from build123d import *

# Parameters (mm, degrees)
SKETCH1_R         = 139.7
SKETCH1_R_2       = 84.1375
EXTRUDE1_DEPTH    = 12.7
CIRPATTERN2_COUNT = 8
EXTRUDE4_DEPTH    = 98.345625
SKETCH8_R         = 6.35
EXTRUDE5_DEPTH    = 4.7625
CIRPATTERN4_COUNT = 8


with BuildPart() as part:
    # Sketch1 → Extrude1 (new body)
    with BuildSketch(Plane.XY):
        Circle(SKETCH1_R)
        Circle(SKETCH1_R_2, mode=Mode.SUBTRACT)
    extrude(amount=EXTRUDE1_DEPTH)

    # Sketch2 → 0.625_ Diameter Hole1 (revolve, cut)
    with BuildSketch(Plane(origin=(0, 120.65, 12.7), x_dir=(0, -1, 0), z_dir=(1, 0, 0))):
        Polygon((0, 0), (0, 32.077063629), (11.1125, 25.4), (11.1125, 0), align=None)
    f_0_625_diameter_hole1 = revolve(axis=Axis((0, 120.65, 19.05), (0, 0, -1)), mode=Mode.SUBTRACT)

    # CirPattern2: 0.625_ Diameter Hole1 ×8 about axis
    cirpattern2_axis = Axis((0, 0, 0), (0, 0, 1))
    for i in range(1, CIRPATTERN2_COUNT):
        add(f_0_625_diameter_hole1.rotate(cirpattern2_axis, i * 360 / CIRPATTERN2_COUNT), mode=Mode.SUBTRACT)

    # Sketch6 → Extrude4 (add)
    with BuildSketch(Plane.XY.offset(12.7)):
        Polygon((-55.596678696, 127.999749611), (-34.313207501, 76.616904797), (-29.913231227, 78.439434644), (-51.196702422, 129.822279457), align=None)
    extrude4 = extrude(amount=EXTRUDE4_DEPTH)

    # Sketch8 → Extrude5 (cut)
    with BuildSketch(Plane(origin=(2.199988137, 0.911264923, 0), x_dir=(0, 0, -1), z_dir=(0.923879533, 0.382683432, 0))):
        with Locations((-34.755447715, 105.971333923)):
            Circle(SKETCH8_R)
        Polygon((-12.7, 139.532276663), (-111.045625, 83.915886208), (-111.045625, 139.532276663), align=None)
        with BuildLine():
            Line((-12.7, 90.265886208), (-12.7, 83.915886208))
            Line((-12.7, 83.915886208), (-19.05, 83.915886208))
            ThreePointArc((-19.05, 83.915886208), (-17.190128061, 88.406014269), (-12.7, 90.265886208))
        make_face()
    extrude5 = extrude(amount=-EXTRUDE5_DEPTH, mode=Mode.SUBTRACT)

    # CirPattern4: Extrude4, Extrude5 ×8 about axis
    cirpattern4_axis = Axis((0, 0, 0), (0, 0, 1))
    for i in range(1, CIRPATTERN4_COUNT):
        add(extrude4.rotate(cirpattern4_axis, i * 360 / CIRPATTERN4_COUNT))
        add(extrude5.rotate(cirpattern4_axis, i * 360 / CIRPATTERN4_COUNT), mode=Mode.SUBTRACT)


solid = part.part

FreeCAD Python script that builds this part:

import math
import FreeCAD as App
import Part
import Sketcher
Q = App.Units.Quantity

doc = App.newDocument("Part")
params = doc.addObject("Spreadsheet::Sheet", "Params")
for row, (alias, value) in enumerate([
    ("sketch1_diameter", "11 in"),
    ("sketch1_diameter2", "6.625 in"),
    ("pad1_length", "0.5 in"),
    ("sketch2_height", "1 in"),
    ("sketch2_width", "0.4375 in"),
    ("groove_angle", "360 deg"),
    ("sketch3_length", "0.1875 in"),
    ("pad2_length", "98.345625 mm"),
    ("sketch4_diameter", "0.5 in"),
    ("pocket1_length", "0.1875 in"),
], start=1):
    params.set(f"A{row}", alias)
    params.set(f"B{row}", "=" + value)
    params.setAlias(f"B{row}", alias)

body = doc.addObject("PartDesign::Body", "Body")

# Sketch on XY plane
sketch1 = body.newObject("Sketcher::SketchObject", "Sketch")
sketch1.AttachmentSupport = (doc.getObject("XY_Plane"), [""])
sketch1.MapMode = "FlatFace"
sketch1.addGeometry([
    Part.Circle(App.Vector(0, 0, 0), App.Vector(0, 0, 1), 140),
    Part.Circle(App.Vector(0, 0, 0), App.Vector(0, 0, 1), 84),
], False)
sketch1.addConstraint([
    Sketcher.Constraint("Coincident", 0, 3, -1, 1),
    Sketcher.Constraint("Coincident", 1, 3, -1, 1),
    Sketcher.Constraint("Diameter", 0, Q("11 in")),
    Sketcher.Constraint("Diameter", 1, Q("6.625 in")),
])
sketch1.setExpression("Constraints[2]", "Params.sketch1_diameter")
sketch1.setExpression("Constraints[3]", "Params.sketch1_diameter2")
pad1 = body.newObject("PartDesign::Pad", "Pad")
pad1.Profile = sketch1
pad1.setExpression("Length", "Params.pad1_length")

# Sketch on YZ plane
sketch2 = body.newObject("Sketcher::SketchObject", "Sketch001")
sketch2.AttachmentSupport = (doc.getObject("YZ_Plane"), [""])
sketch2.MapMode = "FlatFace"
sketch2.addGeometry([
    Part.LineSegment(App.Vector(121, -19, 0), App.Vector(121, 13, 0)),
    Part.LineSegment(App.Vector(121, 13, 0), App.Vector(110, 13, 0)),
    Part.LineSegment(App.Vector(110, 13, 0), App.Vector(110, -13, 0)),
    Part.LineSegment(App.Vector(110, -13, 0), App.Vector(121, -19, 0)),
], False)
sketch2.addGeometry(Part.LineSegment(App.Vector(121, 13, 0), App.Vector(121, -19, 0)), True)  # axis
sketch2.addConstraint([
    Sketcher.Constraint("Coincident", 0, 2, 1, 1),
    Sketcher.Constraint("Coincident", 1, 2, 2, 1),
    Sketcher.Constraint("Coincident", 2, 2, 3, 1),
    Sketcher.Constraint("Coincident", 3, 2, 0, 1),
    Sketcher.Constraint("Vertical", 0),
    Sketcher.Constraint("Horizontal", 1),
    Sketcher.Constraint("Vertical", 2),
    Sketcher.Constraint("Vertical", 4),
    Sketcher.Constraint("Coincident", 4, 1, 0, 2),
    Sketcher.Constraint("Equal", 0, 4),
    Sketcher.Constraint("DistanceY", 2, 2, 2, 1, Q("1 in")),
    Sketcher.Constraint("Angle", 3, Q("-31 deg")),
    Sketcher.Constraint("DistanceY", -1, 1, 0, 2, Q("0.5 in")),
    Sketcher.Constraint("DistanceX", 1, 2, 1, 1, Q("0.4375 in")),
    Sketcher.Constraint("DistanceX", -1, 1, 0, 2, Q("4.75 in")),
])
sketch2.setExpression("Constraints[10]", "Params.sketch2_height")
sketch2.setExpression("Constraints[13]", "Params.sketch2_width")
groove = body.newObject("PartDesign::Groove", "Groove")
groove.Profile = sketch2
groove.ReferenceAxis = (sketch2, ["Axis0"])
groove.setExpression("Angle", "Params.groove_angle")
doc.recompute()

polarpattern = body.newObject("PartDesign::PolarPattern", "PolarPattern")
polarpattern.Originals = [groove]
polarpattern.Axis = (doc.getObject("Z_Axis"), [""])
polarpattern.Angle = 360
polarpattern.Occurrences = 8
body.Tip = polarpattern

# Sketch on XY plane
sketch3 = body.newObject("Sketcher::SketchObject", "Sketch002")
sketch3.AttachmentSupport = (doc.getObject("XY_Plane"), [""])
sketch3.MapMode = "FlatFace"
sketch3.AttachmentOffset = App.Placement(App.Vector(0, 0, 0.5 * 25.4), App.Rotation())
sketch3.addGeometry([
    Part.LineSegment(App.Vector(-55.6, 128, 0), App.Vector(-34.3, 76.6, 0)),
    Part.LineSegment(App.Vector(-34.3, 76.6, 0), App.Vector(-29.9, 78.4, 0)),
    Part.LineSegment(App.Vector(-29.9, 78.4, 0), App.Vector(-51.2, 129.8, 0)),
    Part.LineSegment(App.Vector(-51.2, 129.8, 0), App.Vector(-55.6, 128, 0)),
], False)
sketch3.addConstraint([
    Sketcher.Constraint("Coincident", 0, 2, 1, 1),
    Sketcher.Constraint("Coincident", 1, 2, 2, 1),
    Sketcher.Constraint("Coincident", 2, 2, 3, 1),
    Sketcher.Constraint("Coincident", 3, 2, 0, 1),
    Sketcher.Constraint("Perpendicular", 0, 1),
    Sketcher.Constraint("Perpendicular", 1, 2),
    Sketcher.Constraint("Perpendicular", 2, 3),
    Sketcher.Constraint("Angle", 0, Q("-67.5 deg")),
    Sketcher.Constraint("Distance", 1, Q("0.1875 in")),
    Sketcher.Constraint("Distance", 0, Q("55.61639 mm")),
    Sketcher.Constraint("DistanceX", 1, 2, -1, 1, Q("29.913231 mm")),
    Sketcher.Constraint("DistanceY", -1, 1, 2, 2, Q("129.822279 mm")),
])
sketch3.setExpression("Constraints[8]", "Params.sketch3_length")
pad2 = body.newObject("PartDesign::Pad", "Pad001")
pad2.Profile = sketch3
pad2.setExpression("Length", "Params.pad2_length")

# Sketch on an angled plane
sketch4 = body.newObject("Sketcher::SketchObject", "Sketch003")
sketch4.Placement = App.Placement(App.Vector(2.199988, 0.911265, 0), App.Rotation(App.Vector(0, 0, -1), App.Vector(-0.382683432, 0.923879533, 0), App.Vector(0.923879533, 0.382683432, 0), "ZXY"))
sketch4.addGeometry([
    Part.Circle(App.Vector(-35, 106, 0), App.Vector(0, 0, 1), 6),  # 0
    Part.LineSegment(App.Vector(-111, 84, 0), App.Vector(-13, 140, 0)),  # 1
    Part.LineSegment(App.Vector(-13, 140, 0), App.Vector(-111, 140, 0)),  # 2
    Part.LineSegment(App.Vector(-111, 140, 0), App.Vector(-111, 84, 0)),  # 3
    Part.LineSegment(App.Vector(-13, 84, 0), App.Vector(-13, 90, 0)),  # 4
    Part.ArcOfCircle(Part.Circle(App.Vector(-13, 84, 0), App.Vector(0, 0, 1), 6), math.radians(90), math.radians(180)),  # 5
    Part.LineSegment(App.Vector(-19, 84, 0), App.Vector(-13, 84, 0)),  # 6
], False)
sketch4.addConstraint([
    Sketcher.Constraint("Coincident", 1, 2, 2, 1),
    Sketcher.Constraint("Coincident", 2, 2, 3, 1),
    Sketcher.Constraint("Coincident", 3, 2, 1, 1),
    Sketcher.Constraint("Coincident", 4, 2, 5, 1),
    Sketcher.Constraint("Coincident", 5, 2, 6, 1),
    Sketcher.Constraint("Coincident", 6, 2, 4, 1),
    Sketcher.Constraint("Horizontal", 2),
    Sketcher.Constraint("Vertical", 3),
    Sketcher.Constraint("Vertical", 4),
    Sketcher.Constraint("Horizontal", 6),
    Sketcher.Constraint("Coincident", 6, 2, 5, 3),
    Sketcher.Constraint("Equal", 0, 5),
    Sketcher.Constraint("Horizontal", 5, 3, 3, 2),
    Sketcher.Constraint("Vertical", 5, 3, 1, 2),
    Sketcher.Constraint("Diameter", 0, Q("0.5 in")),
    Sketcher.Constraint("DistanceX", 5, 3, -1, 1, Q("0.5 in")),
    Sketcher.Constraint("DistanceY", 3, 2, 3, 1, Q("55.61639 mm")),
    Sketcher.Constraint("DistanceX", 2, 2, 2, 1, Q("98.345625 mm")),
    Sketcher.Constraint("DistanceX", 0, 3, -1, 1, Q("34.755448 mm")),
    Sketcher.Constraint("DistanceY", -1, 1, 0, 3, Q("105.971334 mm")),
    Sketcher.Constraint("DistanceY", -1, 1, 5, 3, Q("83.915886 mm")),
])
sketch4.setExpression("Constraints[14]", "Params.sketch4_diameter")
pocket1 = body.newObject("PartDesign::Pocket", "Pocket")
pocket1.Profile = sketch4
pocket1.setExpression("Length", "Params.pocket1_length")
doc.recompute()

polarpattern2 = body.newObject("PartDesign::PolarPattern", "PolarPattern001")
polarpattern2.Originals = [pad2, pocket1]
polarpattern2.Axis = (doc.getObject("Z_Axis"), [""])
polarpattern2.Angle = 360
polarpattern2.Occurrences = 8
body.Tip = polarpattern2

doc.recompute()
